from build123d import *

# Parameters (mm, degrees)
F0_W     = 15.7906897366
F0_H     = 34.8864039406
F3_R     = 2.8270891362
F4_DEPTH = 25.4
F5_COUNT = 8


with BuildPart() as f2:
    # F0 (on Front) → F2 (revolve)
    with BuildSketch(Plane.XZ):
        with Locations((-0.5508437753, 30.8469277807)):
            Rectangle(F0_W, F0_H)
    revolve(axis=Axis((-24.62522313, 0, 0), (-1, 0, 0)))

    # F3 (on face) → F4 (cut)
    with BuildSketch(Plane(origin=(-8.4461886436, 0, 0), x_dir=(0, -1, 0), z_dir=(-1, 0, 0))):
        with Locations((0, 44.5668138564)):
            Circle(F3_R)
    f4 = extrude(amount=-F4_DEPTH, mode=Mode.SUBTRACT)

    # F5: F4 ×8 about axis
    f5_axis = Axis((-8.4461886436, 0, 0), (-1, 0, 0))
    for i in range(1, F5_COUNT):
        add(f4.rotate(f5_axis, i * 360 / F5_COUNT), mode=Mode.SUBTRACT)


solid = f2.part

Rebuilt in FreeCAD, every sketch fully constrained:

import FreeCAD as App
import Part
import Sketcher
from FreeCAD import Vector
Q = App.Units.Quantity


def add_polygon(sketch, points):
    """Adds a closed chain of lines whose ends are joined by coincident constraints."""
    first, n = sketch.GeometryCount, len(points)
    for a, b in zip(points, points[1:] + points[:1]):
        sketch.addGeometry(Part.LineSegment(App.Vector(*a, 0), App.Vector(*b, 0)), False)
    for i in range(n):
        sketch.addConstraint(Sketcher.Constraint("Coincident", first + i, 2, first + (i + 1) % n, 1))

doc = App.newDocument("Part")
body = doc.addObject("PartDesign::Body", "Body")

# Sketch on XZ plane
sketch1 = doc.addObject("Sketcher::SketchObject", "Sketch")
body.addObject(sketch1)
sketch1.AttachmentSupport = (doc.XZ_Plane, [""])
sketch1.MapMode = "FlatFace"
add_polygon(sketch1, [(-8.446189, 48.29013), (-8.446189, 13.403726), (7.344501, 13.403726), (7.344501, 48.29013)])  # lines 0-3
sketch1.addConstraint([
    Sketcher.Constraint("Vertical", 0),
    Sketcher.Constraint("Horizontal", 1),
    Sketcher.Constraint("Vertical", 2),
    Sketcher.Constraint("Horizontal", 3),
    Sketcher.Constraint("DistanceX", 1, 1, 1, 2, 15.79069),
    Sketcher.Constraint("DistanceX", -1, 1, 1, 2, 7.344501),
    Sketcher.Constraint("DistanceY", 0, 2, 0, 1, 34.886404),
    Sketcher.Constraint("DistanceY", -1, 1, 2, 2, 48.29013),
])
revolution = doc.addObject("PartDesign::Revolution", "Revolution")
body.addObject(revolution)
revolution.Profile = sketch1
revolution.ReferenceAxis = (sketch1, ["H_Axis"])
revolution.Angle = 360

# Sketch on YZ plane
sketch2 = doc.addObject("Sketcher::SketchObject", "Sketch001")
body.addObject(sketch2)
sketch2.AttachmentSupport = (doc.YZ_Plane, [""])
sketch2.MapMode = "FlatFace"
sketch2.AttachmentOffset = App.Placement(Vector(0, 0, -8.446189), App.Rotation())
sketch2.addGeometry(Part.Circle(Vector(0, 44.566814, 0), Vector(0, 0, 1), 2.827089), False)
sketch2.addConstraint([
    Sketcher.Constraint("PointOnObject", 0, 3, -2),
    Sketcher.Constraint("Diameter", 0, 5.654178),
    Sketcher.Constraint("DistanceY", -1, 1, 0, 3, 44.566814),
])
pocket1 = doc.addObject("PartDesign::Pocket", "Pocket")
body.addObject(pocket1)
pocket1.Profile = sketch2
pocket1.Length = Q("1 in")
pocket1.Reversed = True
doc.recompute()

polarpattern = doc.addObject("PartDesign::PolarPattern", "PolarPattern")
body.addObject(polarpattern)
polarpattern.Originals = [pocket1]
polarpattern.Axis = (doc.X_Axis, [""])
polarpattern.Angle = 360
polarpattern.Occurrences = 8
body.Tip = polarpattern

doc.recompute()
